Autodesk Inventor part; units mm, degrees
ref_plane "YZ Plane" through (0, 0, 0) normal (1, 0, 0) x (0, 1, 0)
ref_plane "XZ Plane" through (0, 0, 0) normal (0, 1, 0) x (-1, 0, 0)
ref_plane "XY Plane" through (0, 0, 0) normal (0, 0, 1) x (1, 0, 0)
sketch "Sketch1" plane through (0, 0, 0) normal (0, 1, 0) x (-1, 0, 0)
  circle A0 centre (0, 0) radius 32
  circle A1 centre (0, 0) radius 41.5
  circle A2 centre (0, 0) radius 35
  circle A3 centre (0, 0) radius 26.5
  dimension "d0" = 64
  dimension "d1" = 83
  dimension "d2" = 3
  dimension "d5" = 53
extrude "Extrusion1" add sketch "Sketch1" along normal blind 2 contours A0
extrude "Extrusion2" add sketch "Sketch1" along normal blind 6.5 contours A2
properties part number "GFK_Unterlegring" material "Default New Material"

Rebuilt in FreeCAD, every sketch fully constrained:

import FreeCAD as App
import Part
import Sketcher

V = App.Vector

doc = App.newDocument("Part")
body = doc.addObject("PartDesign::Body", "Body")

# Sketch on XZ plane
sketch1 = body.newObject("Sketcher::SketchObject", "Sketch")
sketch1.AttachmentSupport = (doc.getObject("XZ_Plane"), [""])
sketch1.MapMode = "FlatFace"
sketch1.addGeometry([
    Part.Circle(V(0, 0, 0), V(0, 0, 1), 32),
    Part.Circle(V(0, 0, 0), V(0, 0, 1), 26),
], False)
sketch1.addConstraint([
    Sketcher.Constraint("Coincident", 0, 3, -1, 1),
    Sketcher.Constraint("Coincident", 1, 3, -1, 1),
    Sketcher.Constraint("Diameter", 0, 64.0),
    Sketcher.Constraint("Diameter", 1, 53.0),
])
pad1 = body.newObject("PartDesign::Pad", "Pad")
pad1.Profile = sketch1
pad1.Length = 2
pad1.Reversed = True

# Sketch on XZ plane
sketch2 = body.newObject("Sketcher::SketchObject", "Sketch001")
sketch2.AttachmentSupport = (doc.getObject("XZ_Plane"), [""])
sketch2.MapMode = "FlatFace"
sketch2.addGeometry([
    Part.Circle(V(0, 0, 0), V(0, 0, 1), 35),
    Part.Circle(V(0, 0, 0), V(0, 0, 1), 32),
], False)
sketch2.addConstraint([
    Sketcher.Constraint("Coincident", 0, 3, -1, 1),
    Sketcher.Constraint("Coincident", 1, 3, -1, 1),
    Sketcher.Constraint("Diameter", 1, 64.0),
    Sketcher.Constraint("Diameter", 0, 70.0),
])
pad2 = body.newObject("PartDesign::Pad", "Pad001")
pad2.Profile = sketch2
pad2.Length = 6.5
pad2.Reversed = True

doc.recompute()
